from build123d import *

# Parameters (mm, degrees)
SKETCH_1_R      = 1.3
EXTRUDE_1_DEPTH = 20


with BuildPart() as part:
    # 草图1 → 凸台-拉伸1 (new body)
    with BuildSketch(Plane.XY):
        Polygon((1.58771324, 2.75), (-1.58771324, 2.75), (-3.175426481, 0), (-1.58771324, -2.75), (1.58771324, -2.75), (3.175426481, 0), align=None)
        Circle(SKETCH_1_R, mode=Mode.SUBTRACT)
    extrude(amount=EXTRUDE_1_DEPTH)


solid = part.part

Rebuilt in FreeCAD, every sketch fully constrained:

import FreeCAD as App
import Part
import Sketcher
from FreeCAD import Vector
Q = App.Units.Quantity

doc = App.newDocument("Part")
body = doc.addObject("PartDesign::Body", "Body")

sketch1 = doc.addObject("Sketcher::SketchObject", "Sketch")
body.addObject(sketch1)
sketch1.AttachmentSupport = (doc.XY_Plane, [""])
sketch1.MapMode = "FlatFace"
sketch1.addGeometry([
    Part.LineSegment(Vector(1.587713, 2.75, 0), Vector(-1.587713, 2.75, 0)),
    Part.LineSegment(Vector(-1.587713, 2.75, 0), Vector(-3.175426, 0, 0)),
    Part.LineSegment(Vector(-3.175426, 0, 0), Vector(-1.587713, -2.75, 0)),
    Part.LineSegment(Vector(-1.587713, -2.75, 0), Vector(1.587713, -2.75, 0)),
    Part.LineSegment(Vector(1.587713, -2.75, 0), Vector(3.175426, 0, 0)),
    Part.LineSegment(Vector(3.175426, 0, 0), Vector(1.587713, 2.75, 0)),
    Part.Circle(Vector(0, 0, 0), Vector(0, 0, 1), 1.3),
], False)
sketch1.addConstraint([
    Sketcher.Constraint("Coincident", 0, 2, 1, 1),
    Sketcher.Constraint("Coincident", 1, 2, 2, 1),
    Sketcher.Constraint("Coincident", 2, 2, 3, 1),
    Sketcher.Constraint("Coincident", 3, 2, 4, 1),
    Sketcher.Constraint("Coincident", 4, 2, 5, 1),
    Sketcher.Constraint("Coincident", 5, 2, 0, 1),
    Sketcher.Constraint("Horizontal", 0),
    Sketcher.Constraint("Horizontal", 3),
    Sketcher.Constraint("Coincident", 6, 3, -1, 1),
    Sketcher.Constraint("Symmetric", 0, 2, 3, 2, -1, 1),
    Sketcher.Constraint("Symmetric", 1, 2, 4, 2, -1, 1),
    Sketcher.Constraint("PointOnObject", 1, 2, -1),
    Sketcher.Constraint("Parallel", 2, 5),
    Sketcher.Constraint("Vertical", 0, 2, 2, 2),
    Sketcher.Constraint("Diameter", 6, Q("2.6 mm")),
    Sketcher.Constraint("Angle", 1, Q("-120 deg")),
    Sketcher.Constraint("DistanceY", 2, 2, 0, 2, Q("5.5 mm")),
    Sketcher.Constraint("DistanceX", 0, 2, 0, 1, Q("3.175426 mm")),
])
pad1 = doc.addObject("PartDesign::Pad", "Pad")
body.addObject(pad1)
pad1.Profile = sketch1
pad1.Length = 20

doc.recompute()
